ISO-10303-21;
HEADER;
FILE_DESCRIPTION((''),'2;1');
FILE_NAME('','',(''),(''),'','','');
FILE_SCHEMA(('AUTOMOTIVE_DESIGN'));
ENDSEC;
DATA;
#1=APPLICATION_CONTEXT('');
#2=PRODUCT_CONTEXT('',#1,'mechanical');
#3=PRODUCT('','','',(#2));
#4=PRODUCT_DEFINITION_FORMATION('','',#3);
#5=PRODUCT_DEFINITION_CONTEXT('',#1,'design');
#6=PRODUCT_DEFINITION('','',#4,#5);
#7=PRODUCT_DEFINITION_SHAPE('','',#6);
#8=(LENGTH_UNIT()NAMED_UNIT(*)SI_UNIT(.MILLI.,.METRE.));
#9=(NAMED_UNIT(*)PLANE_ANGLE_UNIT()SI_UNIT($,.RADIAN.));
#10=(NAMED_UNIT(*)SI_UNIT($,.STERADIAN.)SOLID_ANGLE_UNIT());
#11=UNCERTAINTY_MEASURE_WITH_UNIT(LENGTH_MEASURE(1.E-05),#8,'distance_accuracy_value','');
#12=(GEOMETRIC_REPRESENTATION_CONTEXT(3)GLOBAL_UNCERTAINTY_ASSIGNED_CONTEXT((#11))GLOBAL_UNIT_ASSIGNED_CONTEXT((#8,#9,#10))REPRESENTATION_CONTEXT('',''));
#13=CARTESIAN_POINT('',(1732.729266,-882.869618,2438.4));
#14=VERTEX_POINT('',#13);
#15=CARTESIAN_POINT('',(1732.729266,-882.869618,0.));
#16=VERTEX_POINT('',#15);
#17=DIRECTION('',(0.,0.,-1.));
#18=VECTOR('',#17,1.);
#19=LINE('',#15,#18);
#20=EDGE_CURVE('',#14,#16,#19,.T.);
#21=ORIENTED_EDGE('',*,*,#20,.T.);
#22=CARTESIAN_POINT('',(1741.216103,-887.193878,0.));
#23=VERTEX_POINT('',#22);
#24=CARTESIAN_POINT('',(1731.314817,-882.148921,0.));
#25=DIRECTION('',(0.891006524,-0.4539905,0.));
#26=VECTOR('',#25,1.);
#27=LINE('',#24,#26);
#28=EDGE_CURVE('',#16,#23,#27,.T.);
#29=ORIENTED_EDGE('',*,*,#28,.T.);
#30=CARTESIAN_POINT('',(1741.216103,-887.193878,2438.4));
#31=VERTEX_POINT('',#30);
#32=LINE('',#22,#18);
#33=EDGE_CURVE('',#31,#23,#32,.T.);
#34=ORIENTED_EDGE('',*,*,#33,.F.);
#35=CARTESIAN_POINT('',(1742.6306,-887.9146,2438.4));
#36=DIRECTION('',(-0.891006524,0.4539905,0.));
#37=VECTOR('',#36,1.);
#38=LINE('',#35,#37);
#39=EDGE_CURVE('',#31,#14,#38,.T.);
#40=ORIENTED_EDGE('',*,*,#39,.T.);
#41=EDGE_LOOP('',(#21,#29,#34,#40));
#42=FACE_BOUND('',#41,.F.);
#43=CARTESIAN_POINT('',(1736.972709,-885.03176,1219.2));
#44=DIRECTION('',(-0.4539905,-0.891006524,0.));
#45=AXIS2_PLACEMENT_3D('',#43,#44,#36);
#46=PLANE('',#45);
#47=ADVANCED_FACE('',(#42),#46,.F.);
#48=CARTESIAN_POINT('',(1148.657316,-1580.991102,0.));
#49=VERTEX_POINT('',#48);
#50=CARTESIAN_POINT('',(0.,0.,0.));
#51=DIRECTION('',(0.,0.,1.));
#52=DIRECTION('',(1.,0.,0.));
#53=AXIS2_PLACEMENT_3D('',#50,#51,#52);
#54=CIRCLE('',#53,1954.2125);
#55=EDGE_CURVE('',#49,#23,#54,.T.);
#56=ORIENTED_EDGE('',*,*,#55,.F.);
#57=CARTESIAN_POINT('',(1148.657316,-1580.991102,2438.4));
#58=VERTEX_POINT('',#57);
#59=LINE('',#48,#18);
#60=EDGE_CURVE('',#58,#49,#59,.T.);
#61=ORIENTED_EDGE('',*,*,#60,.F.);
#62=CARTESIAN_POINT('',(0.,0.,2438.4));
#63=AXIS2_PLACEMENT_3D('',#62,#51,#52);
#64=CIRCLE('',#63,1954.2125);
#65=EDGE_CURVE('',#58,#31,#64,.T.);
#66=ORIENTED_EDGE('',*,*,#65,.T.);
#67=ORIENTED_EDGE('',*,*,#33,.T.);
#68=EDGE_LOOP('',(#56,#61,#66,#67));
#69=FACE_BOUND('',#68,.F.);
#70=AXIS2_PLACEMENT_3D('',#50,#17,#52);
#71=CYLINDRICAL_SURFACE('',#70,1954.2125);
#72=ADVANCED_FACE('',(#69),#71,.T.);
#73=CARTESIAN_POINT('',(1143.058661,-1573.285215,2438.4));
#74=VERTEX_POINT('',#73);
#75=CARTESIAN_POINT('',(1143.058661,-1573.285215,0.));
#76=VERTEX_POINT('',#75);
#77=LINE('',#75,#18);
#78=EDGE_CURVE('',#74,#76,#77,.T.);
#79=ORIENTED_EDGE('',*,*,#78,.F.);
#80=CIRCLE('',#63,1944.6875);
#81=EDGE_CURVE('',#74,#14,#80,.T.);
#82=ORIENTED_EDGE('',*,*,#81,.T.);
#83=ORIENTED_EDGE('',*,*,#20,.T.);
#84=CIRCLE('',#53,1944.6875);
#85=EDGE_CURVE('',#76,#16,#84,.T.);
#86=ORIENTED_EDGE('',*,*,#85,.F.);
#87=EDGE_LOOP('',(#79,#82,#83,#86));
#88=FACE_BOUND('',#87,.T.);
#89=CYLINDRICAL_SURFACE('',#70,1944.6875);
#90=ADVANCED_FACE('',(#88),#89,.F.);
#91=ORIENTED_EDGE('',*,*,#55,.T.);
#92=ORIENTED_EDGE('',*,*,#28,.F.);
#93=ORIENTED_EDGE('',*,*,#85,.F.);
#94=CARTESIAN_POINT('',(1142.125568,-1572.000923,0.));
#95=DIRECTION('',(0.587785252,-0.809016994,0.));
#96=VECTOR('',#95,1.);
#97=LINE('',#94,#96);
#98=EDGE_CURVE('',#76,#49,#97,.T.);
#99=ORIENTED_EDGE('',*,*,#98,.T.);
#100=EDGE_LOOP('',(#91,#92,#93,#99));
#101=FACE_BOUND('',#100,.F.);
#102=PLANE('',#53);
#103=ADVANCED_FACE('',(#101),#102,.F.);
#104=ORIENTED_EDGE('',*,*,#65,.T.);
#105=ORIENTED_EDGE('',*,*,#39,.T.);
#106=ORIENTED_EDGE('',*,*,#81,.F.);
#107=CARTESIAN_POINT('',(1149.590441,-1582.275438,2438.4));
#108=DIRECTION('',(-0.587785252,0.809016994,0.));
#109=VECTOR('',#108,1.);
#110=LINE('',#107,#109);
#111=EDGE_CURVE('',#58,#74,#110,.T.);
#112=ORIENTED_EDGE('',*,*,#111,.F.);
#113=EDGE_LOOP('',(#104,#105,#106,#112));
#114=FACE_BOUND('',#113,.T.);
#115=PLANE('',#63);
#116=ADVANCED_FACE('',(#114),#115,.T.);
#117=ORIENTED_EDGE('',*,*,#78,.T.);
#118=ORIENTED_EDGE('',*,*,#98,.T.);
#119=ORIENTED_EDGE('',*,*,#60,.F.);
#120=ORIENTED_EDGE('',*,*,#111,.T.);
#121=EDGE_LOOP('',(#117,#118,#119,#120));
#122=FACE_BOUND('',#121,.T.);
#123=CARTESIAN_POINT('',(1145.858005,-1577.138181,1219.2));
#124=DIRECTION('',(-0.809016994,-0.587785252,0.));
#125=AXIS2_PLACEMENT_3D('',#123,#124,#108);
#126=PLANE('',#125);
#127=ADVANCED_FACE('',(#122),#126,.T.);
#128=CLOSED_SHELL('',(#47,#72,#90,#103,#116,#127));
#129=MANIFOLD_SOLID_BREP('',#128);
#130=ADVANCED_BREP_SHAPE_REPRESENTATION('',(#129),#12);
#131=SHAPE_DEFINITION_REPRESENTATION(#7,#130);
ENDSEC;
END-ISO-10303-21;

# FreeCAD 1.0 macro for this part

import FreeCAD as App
import Part
import Sketcher
Q = App.Units.Quantity

doc = App.newDocument("Part")
body = doc.addObject("PartDesign::Body", "Body")

# Sketch on XY plane
sketch1 = doc.addObject("Sketcher::SketchObject", "Sketch")
body.addObject(sketch1)
sketch1.AttachmentSupport = (doc.XY_Plane, [""])
sketch1.MapMode = "FlatFace"
sketch1.addGeometry([
    Part.Circle(App.Vector(0, 0, 0), App.Vector(0, 0, 1), 1954),
    Part.Circle(App.Vector(0, 0, 0), App.Vector(0, 0, 1), 1945),
], False)
sketch1.addConstraint([
    Sketcher.Constraint("Coincident", 0, 3, -1, 1),
    Sketcher.Constraint("Coincident", 1, 3, -1, 1),
    Sketcher.Constraint("Diameter", 0, Q("153.875 in")),
    Sketcher.Constraint("Diameter", 1, Q("153.125 in")),
])
pad1 = doc.addObject("PartDesign::Pad", "Pad")
body.addObject(pad1)
pad1.Profile = sketch1
pad1.Length = Q("96 in")

# Sketch on an angled plane
sketch2 = doc.addObject("Sketcher::SketchObject", "Sketch001")
body.addObject(sketch2)
sketch2.Placement = App.Placement(App.Vector(1742.6306, -887.9146, 0), App.Rotation(App.Vector(0.891006524, -0.4539905, 0), App.Vector(0, 0, 1), App.Vector(-0.4539905, -0.891006524, 0), "ZXY"))
sketch2.addGeometry([
    Part.LineSegment(App.Vector(-13, 0, 0), App.Vector(0, 0, 0)),
    Part.LineSegment(App.Vector(0, 0, 0), App.Vector(0, 2438, 0)),
    Part.LineSegment(App.Vector(0, 2438, 0), App.Vector(-13, 2438, 0)),
    Part.LineSegment(App.Vector(-13, 2438, 0), App.Vector(-13, 0, 0)),
], False)
sketch2.addGeometry(Part.LineSegment(App.Vector(-1956, 0, 0), App.Vector(-1956, 2438, 0)), True)  # axis
sketch2.addConstraint([
    Sketcher.Constraint("Coincident", 0, 2, 1, 1),
    Sketcher.Constraint("Coincident", 1, 2, 2, 1),
    Sketcher.Constraint("Coincident", 2, 2, 3, 1),
    Sketcher.Constraint("Coincident", 3, 2, 0, 1),
    Sketcher.Constraint("Horizontal", 0),
    Sketcher.Constraint("Vertical", 1),
    Sketcher.Constraint("Horizontal", 2),
    Sketcher.Constraint("Vertical", 3),
    Sketcher.Constraint("Vertical", 4),
    Sketcher.Constraint("Coincident", 0, 2, -1, 1),
    Sketcher.Constraint("PointOnObject", 4, 1, -1),
    Sketcher.Constraint("Horizontal", 2, 2, 4, 2),
    Sketcher.Constraint("DistanceY", 1, 1, 1, 2, Q("96 in")),
    Sketcher.Constraint("DistanceX", 0, 1, 0, 2, Q("0.5 in")),
    Sketcher.Constraint("DistanceX", 4, 1, -1, 1, Q("77 in")),
])
groove = doc.addObject("PartDesign::Groove", "Groove")
body.addObject(groove)
groove.Profile = sketch2
groove.ReferenceAxis = (sketch2, ["Axis0"])
groove.Angle = 333

doc.recompute()
